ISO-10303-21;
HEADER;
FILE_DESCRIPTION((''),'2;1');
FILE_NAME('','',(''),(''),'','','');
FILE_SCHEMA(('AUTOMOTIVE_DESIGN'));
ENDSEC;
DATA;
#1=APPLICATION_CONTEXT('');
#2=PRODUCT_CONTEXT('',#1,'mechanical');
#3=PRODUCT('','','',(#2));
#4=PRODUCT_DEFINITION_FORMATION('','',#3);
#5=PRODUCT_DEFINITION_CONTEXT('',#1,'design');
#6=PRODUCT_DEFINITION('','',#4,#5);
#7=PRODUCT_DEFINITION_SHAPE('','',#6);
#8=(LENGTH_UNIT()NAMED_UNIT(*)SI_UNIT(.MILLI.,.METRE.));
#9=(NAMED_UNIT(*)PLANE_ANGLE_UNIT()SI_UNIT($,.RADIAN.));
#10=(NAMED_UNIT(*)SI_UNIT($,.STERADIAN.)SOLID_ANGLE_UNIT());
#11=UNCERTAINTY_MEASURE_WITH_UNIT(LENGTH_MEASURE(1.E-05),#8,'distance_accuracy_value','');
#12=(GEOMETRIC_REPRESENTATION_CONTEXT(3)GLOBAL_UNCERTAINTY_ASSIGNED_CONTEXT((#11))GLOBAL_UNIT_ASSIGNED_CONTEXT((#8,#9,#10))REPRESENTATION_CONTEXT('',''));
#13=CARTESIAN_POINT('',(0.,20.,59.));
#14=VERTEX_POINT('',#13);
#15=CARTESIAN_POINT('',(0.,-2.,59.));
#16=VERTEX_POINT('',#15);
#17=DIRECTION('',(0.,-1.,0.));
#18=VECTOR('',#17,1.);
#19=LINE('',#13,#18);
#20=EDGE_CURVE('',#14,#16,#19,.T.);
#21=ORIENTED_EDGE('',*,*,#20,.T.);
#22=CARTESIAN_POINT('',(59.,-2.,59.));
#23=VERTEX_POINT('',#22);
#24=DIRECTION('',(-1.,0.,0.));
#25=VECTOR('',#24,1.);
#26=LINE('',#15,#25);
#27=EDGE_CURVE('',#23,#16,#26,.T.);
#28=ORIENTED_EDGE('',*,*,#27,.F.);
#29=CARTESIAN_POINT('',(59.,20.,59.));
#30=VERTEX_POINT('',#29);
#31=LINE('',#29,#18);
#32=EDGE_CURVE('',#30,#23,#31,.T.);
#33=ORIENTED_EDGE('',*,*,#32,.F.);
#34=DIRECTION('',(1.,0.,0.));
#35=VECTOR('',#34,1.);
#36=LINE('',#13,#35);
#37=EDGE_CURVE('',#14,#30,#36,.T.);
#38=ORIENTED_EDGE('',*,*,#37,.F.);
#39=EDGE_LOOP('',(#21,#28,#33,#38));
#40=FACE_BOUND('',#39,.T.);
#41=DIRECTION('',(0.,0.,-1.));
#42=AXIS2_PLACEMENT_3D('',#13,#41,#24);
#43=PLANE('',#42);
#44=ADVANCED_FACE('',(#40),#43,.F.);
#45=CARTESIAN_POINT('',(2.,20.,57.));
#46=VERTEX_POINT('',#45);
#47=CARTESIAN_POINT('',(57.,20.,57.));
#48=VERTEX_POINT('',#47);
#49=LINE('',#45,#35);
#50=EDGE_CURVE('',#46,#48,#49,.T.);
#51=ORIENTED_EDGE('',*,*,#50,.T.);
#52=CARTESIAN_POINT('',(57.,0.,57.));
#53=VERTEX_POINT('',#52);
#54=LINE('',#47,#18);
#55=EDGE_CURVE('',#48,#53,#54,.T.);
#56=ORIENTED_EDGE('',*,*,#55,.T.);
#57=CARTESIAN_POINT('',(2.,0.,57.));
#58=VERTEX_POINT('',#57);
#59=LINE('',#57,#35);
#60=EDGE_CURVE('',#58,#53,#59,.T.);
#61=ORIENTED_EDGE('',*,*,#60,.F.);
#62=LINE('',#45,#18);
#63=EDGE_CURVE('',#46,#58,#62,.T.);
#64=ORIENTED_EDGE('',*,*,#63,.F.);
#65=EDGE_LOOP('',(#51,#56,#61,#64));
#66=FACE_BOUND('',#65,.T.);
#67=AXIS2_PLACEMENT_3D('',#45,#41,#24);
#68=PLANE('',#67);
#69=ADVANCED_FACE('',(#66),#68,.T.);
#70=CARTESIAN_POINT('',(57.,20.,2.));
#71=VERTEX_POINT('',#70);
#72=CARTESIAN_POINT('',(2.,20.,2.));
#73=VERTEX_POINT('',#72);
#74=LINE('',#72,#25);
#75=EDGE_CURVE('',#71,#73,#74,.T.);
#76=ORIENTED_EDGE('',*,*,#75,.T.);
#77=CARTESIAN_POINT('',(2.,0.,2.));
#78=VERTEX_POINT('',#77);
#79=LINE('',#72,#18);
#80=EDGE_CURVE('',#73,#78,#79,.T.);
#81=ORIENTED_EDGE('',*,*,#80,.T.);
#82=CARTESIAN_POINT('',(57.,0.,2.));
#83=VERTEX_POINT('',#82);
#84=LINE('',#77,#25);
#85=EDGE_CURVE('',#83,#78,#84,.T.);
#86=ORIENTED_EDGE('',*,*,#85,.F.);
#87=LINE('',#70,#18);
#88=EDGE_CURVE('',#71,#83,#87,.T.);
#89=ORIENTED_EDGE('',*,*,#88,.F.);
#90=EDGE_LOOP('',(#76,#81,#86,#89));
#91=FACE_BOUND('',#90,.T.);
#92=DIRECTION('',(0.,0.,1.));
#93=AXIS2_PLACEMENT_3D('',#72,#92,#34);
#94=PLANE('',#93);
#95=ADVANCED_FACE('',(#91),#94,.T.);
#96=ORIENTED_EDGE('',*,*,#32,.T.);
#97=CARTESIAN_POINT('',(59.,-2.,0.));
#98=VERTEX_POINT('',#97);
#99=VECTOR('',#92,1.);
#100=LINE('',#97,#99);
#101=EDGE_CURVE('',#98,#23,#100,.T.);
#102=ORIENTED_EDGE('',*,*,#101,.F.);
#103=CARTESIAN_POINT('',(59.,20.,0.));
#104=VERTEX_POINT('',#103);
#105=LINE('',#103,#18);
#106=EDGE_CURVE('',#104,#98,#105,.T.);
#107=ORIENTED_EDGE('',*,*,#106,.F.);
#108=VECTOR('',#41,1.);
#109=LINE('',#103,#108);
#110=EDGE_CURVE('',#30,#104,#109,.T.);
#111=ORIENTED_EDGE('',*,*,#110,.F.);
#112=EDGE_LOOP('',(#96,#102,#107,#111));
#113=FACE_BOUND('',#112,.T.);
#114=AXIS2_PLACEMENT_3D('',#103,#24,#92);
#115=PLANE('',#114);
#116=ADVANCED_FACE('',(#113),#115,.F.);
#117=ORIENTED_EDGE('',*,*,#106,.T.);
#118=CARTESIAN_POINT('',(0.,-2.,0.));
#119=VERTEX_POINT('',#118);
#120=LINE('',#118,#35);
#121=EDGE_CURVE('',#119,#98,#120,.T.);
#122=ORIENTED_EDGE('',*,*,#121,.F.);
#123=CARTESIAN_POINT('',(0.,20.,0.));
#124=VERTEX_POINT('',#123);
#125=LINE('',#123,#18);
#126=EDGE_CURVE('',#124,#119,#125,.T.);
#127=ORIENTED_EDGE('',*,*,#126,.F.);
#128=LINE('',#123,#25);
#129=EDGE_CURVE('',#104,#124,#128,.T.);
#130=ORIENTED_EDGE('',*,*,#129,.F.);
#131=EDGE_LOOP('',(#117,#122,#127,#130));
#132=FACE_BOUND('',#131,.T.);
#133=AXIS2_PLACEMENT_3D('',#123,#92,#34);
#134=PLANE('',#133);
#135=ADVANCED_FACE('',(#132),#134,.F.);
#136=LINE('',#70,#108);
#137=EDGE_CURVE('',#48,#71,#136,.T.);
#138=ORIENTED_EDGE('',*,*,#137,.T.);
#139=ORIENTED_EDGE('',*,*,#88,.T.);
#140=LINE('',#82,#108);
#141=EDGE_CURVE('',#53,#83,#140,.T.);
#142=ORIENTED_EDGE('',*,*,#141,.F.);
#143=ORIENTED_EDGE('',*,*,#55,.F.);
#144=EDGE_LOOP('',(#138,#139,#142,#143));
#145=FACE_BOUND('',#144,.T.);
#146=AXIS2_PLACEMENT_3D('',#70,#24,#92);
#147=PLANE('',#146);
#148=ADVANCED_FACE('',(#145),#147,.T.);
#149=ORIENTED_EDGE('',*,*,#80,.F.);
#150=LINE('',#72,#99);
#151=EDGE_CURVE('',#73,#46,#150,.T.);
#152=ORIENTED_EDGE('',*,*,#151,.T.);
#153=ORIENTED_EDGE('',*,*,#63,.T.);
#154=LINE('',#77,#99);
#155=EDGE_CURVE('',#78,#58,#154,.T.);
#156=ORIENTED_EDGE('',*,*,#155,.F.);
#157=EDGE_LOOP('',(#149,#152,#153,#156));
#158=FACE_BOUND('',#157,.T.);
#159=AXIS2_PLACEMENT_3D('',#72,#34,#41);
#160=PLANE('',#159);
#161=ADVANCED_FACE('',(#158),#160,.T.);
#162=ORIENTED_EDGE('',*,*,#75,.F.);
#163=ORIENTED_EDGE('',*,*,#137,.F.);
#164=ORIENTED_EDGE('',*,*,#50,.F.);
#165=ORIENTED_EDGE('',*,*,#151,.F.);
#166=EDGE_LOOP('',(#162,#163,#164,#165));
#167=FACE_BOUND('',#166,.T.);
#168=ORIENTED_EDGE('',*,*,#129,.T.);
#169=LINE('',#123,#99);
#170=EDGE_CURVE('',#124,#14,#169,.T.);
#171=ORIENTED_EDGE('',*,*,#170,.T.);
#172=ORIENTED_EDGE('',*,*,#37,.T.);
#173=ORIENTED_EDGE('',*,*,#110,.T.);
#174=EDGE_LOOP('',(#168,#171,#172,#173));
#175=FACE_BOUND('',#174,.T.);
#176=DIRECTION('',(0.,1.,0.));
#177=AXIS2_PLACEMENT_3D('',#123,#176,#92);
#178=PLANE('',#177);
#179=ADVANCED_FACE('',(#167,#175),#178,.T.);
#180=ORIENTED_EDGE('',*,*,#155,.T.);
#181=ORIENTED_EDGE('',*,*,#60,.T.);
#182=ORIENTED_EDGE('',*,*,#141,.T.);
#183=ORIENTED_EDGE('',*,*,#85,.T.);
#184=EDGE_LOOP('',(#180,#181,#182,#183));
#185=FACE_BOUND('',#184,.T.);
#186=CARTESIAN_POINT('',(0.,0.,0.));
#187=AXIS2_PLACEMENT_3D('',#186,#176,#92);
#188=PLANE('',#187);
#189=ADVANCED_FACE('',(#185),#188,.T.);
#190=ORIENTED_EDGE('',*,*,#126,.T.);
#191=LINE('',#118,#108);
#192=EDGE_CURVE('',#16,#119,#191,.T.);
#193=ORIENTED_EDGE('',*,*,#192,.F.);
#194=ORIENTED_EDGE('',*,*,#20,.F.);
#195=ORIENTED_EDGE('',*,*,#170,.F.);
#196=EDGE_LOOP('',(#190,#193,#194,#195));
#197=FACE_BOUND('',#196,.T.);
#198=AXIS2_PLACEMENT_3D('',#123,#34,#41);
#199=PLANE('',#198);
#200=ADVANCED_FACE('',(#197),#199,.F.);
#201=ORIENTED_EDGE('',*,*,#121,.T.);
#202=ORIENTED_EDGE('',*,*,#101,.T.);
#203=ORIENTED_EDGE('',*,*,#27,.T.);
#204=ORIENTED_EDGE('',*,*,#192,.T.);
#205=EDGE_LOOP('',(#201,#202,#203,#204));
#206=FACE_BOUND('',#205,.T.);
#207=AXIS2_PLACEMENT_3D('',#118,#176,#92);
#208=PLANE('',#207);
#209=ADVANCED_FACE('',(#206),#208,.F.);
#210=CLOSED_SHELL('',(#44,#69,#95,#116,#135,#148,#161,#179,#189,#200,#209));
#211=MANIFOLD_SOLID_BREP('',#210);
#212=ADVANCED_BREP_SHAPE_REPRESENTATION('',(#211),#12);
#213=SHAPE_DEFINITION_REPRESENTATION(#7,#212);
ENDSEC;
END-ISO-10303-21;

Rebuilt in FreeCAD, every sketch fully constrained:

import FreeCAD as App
import Part
import Sketcher
from FreeCAD import Vector
Q = App.Units.Quantity


def add_polygon(sketch, points):
    """Adds a closed chain of lines whose ends are joined by coincident constraints."""
    first, n = sketch.GeometryCount, len(points)
    for a, b in zip(points, points[1:] + points[:1]):
        sketch.addGeometry(Part.LineSegment(App.Vector(*a, 0), App.Vector(*b, 0)), False)
    for i in range(n):
        sketch.addConstraint(Sketcher.Constraint("Coincident", first + i, 2, first + (i + 1) % n, 1))

doc = App.newDocument("Part")
body = doc.addObject("PartDesign::Body", "Body")

# Sketch on XZ plane
sketch1 = body.newObject("Sketcher::SketchObject", "Sketch")
sketch1.AttachmentSupport = (doc.getObject("XZ_Plane"), [""])
sketch1.MapMode = "FlatFace"
add_polygon(sketch1, [(0, 0), (0, 59), (59, 59), (59, 0)])  # lines 0-3
add_polygon(sketch1, [(57, 57), (2, 57), (2, 2), (57, 2)])  # lines 4-7
sketch1.addConstraint(Sketcher.Constraint("Vertical", 0))
sketch1.addConstraint(Sketcher.Constraint("Horizontal", 1))
sketch1.addConstraint(Sketcher.Constraint("Vertical", 2))
sketch1.addConstraint(Sketcher.Constraint("Horizontal", 3))
sketch1.addConstraint(Sketcher.Constraint("Horizontal", 4))
sketch1.addConstraint(Sketcher.Constraint("Vertical", 5))
sketch1.addConstraint(Sketcher.Constraint("Horizontal", 6))
sketch1.addConstraint(Sketcher.Constraint("Vertical", 7))
sketch1.addConstraint(Sketcher.Constraint("Coincident", 3, 2, -1, 1))
sketch1.addConstraint(Sketcher.Constraint("Equal", 3, 0))
sketch1.addConstraint(Sketcher.Constraint("Equal", 6, 5))
sketch1.addConstraint(Sketcher.Constraint("DistanceX", 1, 1, 1, 2, Q("59 mm")))
sketch1.addConstraint(Sketcher.Constraint("DistanceX", 4, 2, 4, 1, Q("55 mm")))
sketch1.addConstraint(Sketcher.Constraint("DistanceX", -1, 1, 4, 2, Q("2 mm")))
sketch1.addConstraint(Sketcher.Constraint("DistanceY", -1, 1, 4, 2, Q("57 mm")))
pad1 = body.newObject("PartDesign::Pad", "Pad")
pad1.Profile = sketch1
pad1.Length = 20
pad1.Reversed = True

# Sketch on XZ plane
sketch2 = body.newObject("Sketcher::SketchObject", "Sketch001")
sketch2.AttachmentSupport = (doc.getObject("XZ_Plane"), [""])
sketch2.MapMode = "FlatFace"
add_polygon(sketch2, [(0, 59), (0, 0), (59, 0), (59, 59)])  # lines 0-3
sketch2.addConstraint(Sketcher.Constraint("Vertical", 0))
sketch2.addConstraint(Sketcher.Constraint("Horizontal", 1))
sketch2.addConstraint(Sketcher.Constraint("Vertical", 2))
sketch2.addConstraint(Sketcher.Constraint("Horizontal", 3))
sketch2.addConstraint(Sketcher.Constraint("Coincident", 0, 2, -1, 1))
sketch2.addConstraint(Sketcher.Constraint("Equal", 3, 0))
sketch2.addConstraint(Sketcher.Constraint("DistanceX", 1, 1, 1, 2, Q("59 mm")))
pad2 = body.newObject("PartDesign::Pad", "Pad001")
pad2.Profile = sketch2
pad2.Length = 2

doc.recompute()
